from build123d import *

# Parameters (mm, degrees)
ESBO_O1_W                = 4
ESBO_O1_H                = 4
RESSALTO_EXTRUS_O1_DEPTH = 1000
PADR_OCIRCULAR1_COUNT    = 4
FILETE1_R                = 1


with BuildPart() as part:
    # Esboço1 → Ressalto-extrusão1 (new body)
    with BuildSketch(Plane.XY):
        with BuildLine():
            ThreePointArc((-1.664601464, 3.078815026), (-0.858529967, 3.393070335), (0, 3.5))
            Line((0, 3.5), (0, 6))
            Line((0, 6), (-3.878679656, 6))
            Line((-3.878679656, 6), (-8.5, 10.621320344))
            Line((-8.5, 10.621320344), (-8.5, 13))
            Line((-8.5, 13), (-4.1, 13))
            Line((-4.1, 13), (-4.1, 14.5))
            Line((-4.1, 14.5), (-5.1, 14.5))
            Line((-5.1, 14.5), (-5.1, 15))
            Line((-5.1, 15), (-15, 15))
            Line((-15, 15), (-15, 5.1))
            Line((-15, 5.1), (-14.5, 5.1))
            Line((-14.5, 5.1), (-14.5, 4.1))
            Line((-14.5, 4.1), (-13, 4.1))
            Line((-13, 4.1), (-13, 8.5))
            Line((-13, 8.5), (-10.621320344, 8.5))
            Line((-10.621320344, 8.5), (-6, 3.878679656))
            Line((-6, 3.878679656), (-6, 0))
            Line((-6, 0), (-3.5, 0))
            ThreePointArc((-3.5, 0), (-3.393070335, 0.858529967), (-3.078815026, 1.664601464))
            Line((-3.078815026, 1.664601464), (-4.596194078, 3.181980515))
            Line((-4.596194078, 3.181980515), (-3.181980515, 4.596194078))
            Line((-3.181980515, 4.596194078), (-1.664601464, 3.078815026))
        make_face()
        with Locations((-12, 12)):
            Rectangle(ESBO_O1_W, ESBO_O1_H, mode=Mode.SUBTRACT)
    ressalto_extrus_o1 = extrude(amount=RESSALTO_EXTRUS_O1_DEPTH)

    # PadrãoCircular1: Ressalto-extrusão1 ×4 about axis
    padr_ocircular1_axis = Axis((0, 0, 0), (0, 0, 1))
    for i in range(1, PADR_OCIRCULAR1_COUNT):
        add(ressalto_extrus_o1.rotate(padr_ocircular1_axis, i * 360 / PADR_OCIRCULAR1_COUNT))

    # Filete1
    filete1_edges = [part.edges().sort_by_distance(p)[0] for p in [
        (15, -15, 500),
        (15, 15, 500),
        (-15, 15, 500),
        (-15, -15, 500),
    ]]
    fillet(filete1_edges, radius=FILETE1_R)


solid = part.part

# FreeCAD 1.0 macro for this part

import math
import FreeCAD as App
import Part
import Sketcher
from FreeCAD import Vector
Q = App.Units.Quantity


def edges_at(feature, points):
    """Names of the edges that pass closest to the given points."""
    edges = feature.Shape.Edges
    near = lambda p: min(range(len(edges)), key=lambda i: edges[i].distToShape(Part.Vertex(*p))[0])
    return sorted({f"Edge{near(p) + 1}" for p in points})


def add_polygon(sketch, points):
    """Adds a closed chain of lines whose ends are joined by coincident constraints."""
    first, n = sketch.GeometryCount, len(points)
    for a, b in zip(points, points[1:] + points[:1]):
        sketch.addGeometry(Part.LineSegment(App.Vector(*a, 0), App.Vector(*b, 0)), False)
    for i in range(n):
        sketch.addConstraint(Sketcher.Constraint("Coincident", first + i, 2, first + (i + 1) % n, 1))

doc = App.newDocument("Part")
body = doc.addObject("PartDesign::Body", "Body")

# Sketch on XY plane
sketch1 = body.newObject("Sketcher::SketchObject", "Sketch")
sketch1.AttachmentSupport = (doc.getObject("XY_Plane"), [""])
sketch1.MapMode = "FlatFace"
sketch1.addGeometry(Part.ArcOfCircle(Part.Circle(Vector(0, 0, 0), Vector(0, 0, 1), 3.5), math.radians(90), math.radians(118)), False)  # 0
sketch1.addGeometry(Part.LineSegment(Vector(0, 3.5, 0), Vector(0, 6, 0)), False)  # 1
sketch1.addGeometry(Part.LineSegment(Vector(0, 6, 0), Vector(-3.9, 6, 0)), False)  # 2
sketch1.addGeometry(Part.LineSegment(Vector(-3.9, 6, 0), Vector(-8.5, 10.6, 0)), False)  # 3
sketch1.addGeometry(Part.LineSegment(Vector(-8.5, 10.6, 0), Vector(-8.5, 13, 0)), False)  # 4
sketch1.addGeometry(Part.LineSegment(Vector(-8.5, 13, 0), Vector(-4.1, 13, 0)), False)  # 5
sketch1.addGeometry(Part.LineSegment(Vector(-4.1, 13, 0), Vector(-4.1, 14.5, 0)), False)  # 6
sketch1.addGeometry(Part.LineSegment(Vector(-4.1, 14.5, 0), Vector(-5.1, 14.5, 0)), False)  # 7
sketch1.addGeometry(Part.LineSegment(Vector(-5.1, 14.5, 0), Vector(-5.1, 15, 0)), False)  # 8
sketch1.addGeometry(Part.LineSegment(Vector(-5.1, 15, 0), Vector(-15, 15, 0)), False)  # 9
sketch1.addGeometry(Part.LineSegment(Vector(-15, 15, 0), Vector(-15, 5.1, 0)), False)  # 10
sketch1.addGeometry(Part.LineSegment(Vector(-15, 5.1, 0), Vector(-14.5, 5.1, 0)), False)  # 11
sketch1.addGeometry(Part.LineSegment(Vector(-14.5, 5.1, 0), Vector(-14.5, 4.1, 0)), False)  # 12
sketch1.addGeometry(Part.LineSegment(Vector(-14.5, 4.1, 0), Vector(-13, 4.1, 0)), False)  # 13
sketch1.addGeometry(Part.LineSegment(Vector(-13, 4.1, 0), Vector(-13, 8.5, 0)), False)  # 14
sketch1.addGeometry(Part.LineSegment(Vector(-13, 8.5, 0), Vector(-10.6, 8.5, 0)), False)  # 15
sketch1.addGeometry(Part.LineSegment(Vector(-10.6, 8.5, 0), Vector(-6, 3.9, 0)), False)  # 16
sketch1.addGeometry(Part.LineSegment(Vector(-6, 3.9, 0), Vector(-6, 0, 0)), False)  # 17
sketch1.addGeometry(Part.LineSegment(Vector(-6, 0, 0), Vector(-3.5, 0, 0)), False)  # 18
sketch1.addGeometry(Part.ArcOfCircle(Part.Circle(Vector(0, 0, 0), Vector(0, 0, 1), 3.5), math.radians(152), math.radians(180)), False)  # 19
sketch1.addGeometry(Part.LineSegment(Vector(-3.1, 1.7, 0), Vector(-4.6, 3.2, 0)), False)  # 20
sketch1.addGeometry(Part.LineSegment(Vector(-4.6, 3.2, 0), Vector(-3.2, 4.6, 0)), False)  # 21
sketch1.addGeometry(Part.LineSegment(Vector(-3.2, 4.6, 0), Vector(-1.7, 3.1, 0)), False)  # 22
add_polygon(sketch1, [(-10, 10), (-14, 10), (-14, 14), (-10, 14)])  # lines 23-26
sketch1.addConstraint([
    Sketcher.Constraint("Coincident", 0, 1, 1, 1),
    Sketcher.Constraint("Coincident", 1, 2, 2, 1),
    Sketcher.Constraint("Coincident", 2, 2, 3, 1),
    Sketcher.Constraint("Coincident", 3, 2, 4, 1),
    Sketcher.Constraint("Coincident", 4, 2, 5, 1),
    Sketcher.Constraint("Coincident", 5, 2, 6, 1),
    Sketcher.Constraint("Coincident", 6, 2, 7, 1),
    Sketcher.Constraint("Coincident", 7, 2, 8, 1),
    Sketcher.Constraint("Coincident", 8, 2, 9, 1),
    Sketcher.Constraint("Coincident", 9, 2, 10, 1),
    Sketcher.Constraint("Coincident", 10, 2, 11, 1),
    Sketcher.Constraint("Coincident", 11, 2, 12, 1),
    Sketcher.Constraint("Coincident", 12, 2, 13, 1),
    Sketcher.Constraint("Coincident", 13, 2, 14, 1),
    Sketcher.Constraint("Coincident", 14, 2, 15, 1),
    Sketcher.Constraint("Coincident", 15, 2, 16, 1),
    Sketcher.Constraint("Coincident", 16, 2, 17, 1),
    Sketcher.Constraint("Coincident", 17, 2, 18, 1),
    Sketcher.Constraint("Coincident", 18, 2, 19, 2),
    Sketcher.Constraint("Coincident", 19, 1, 20, 1),
    Sketcher.Constraint("Coincident", 20, 2, 21, 1),
    Sketcher.Constraint("Coincident", 21, 2, 22, 1),
    Sketcher.Constraint("Coincident", 22, 2, 0, 2),
    Sketcher.Constraint("Vertical", 1),
    Sketcher.Constraint("Horizontal", 2),
    Sketcher.Constraint("Vertical", 4),
    Sketcher.Constraint("Horizontal", 5),
    Sketcher.Constraint("Vertical", 6),
    Sketcher.Constraint("Horizontal", 7),
    Sketcher.Constraint("Vertical", 8),
    Sketcher.Constraint("Horizontal", 9),
    Sketcher.Constraint("Vertical", 10),
    Sketcher.Constraint("Horizontal", 11),
    Sketcher.Constraint("Vertical", 12),
    Sketcher.Constraint("Horizontal", 13),
    Sketcher.Constraint("Vertical", 14),
    Sketcher.Constraint("Horizontal", 15),
    Sketcher.Constraint("Vertical", 17),
    Sketcher.Constraint("Horizontal", 18),
    Sketcher.Constraint("Horizontal", 23),
    Sketcher.Constraint("Vertical", 24),
    Sketcher.Constraint("Horizontal", 25),
    Sketcher.Constraint("Vertical", 26),
    Sketcher.Constraint("Coincident", 0, 3, -1, 1),
    Sketcher.Constraint("Coincident", 19, 3, -1, 1),
    Sketcher.Constraint("Equal", 0, 19),
    Sketcher.Constraint("PointOnObject", 0, 1, -2),
    Sketcher.Constraint("PointOnObject", 17, 2, -1),
    Sketcher.Constraint("Parallel", 3, 16),
    Sketcher.Constraint("Parallel", 16, 20),
    Sketcher.Constraint("Perpendicular", 20, 21),
    Sketcher.Constraint("Perpendicular", 21, 22),
    Sketcher.Constraint("Equal", 18, 1),
    Sketcher.Constraint("Equal", 15, 4),
    Sketcher.Constraint("Equal", 13, 6),
    Sketcher.Constraint("Equal", 11, 8),
    Sketcher.Constraint("Equal", 9, 10),
    Sketcher.Constraint("Equal", 7, 12),
    Sketcher.Constraint("Equal", 5, 14),
    Sketcher.Constraint("Equal", 2, 17),
    Sketcher.Constraint("Equal", 25, 24),
    Sketcher.Constraint("Equal", 20, 22),
    Sketcher.Constraint("Radius", 0, 3.5),
    Sketcher.Constraint("DistanceX", 7, 2, 7, 1, 1.0),
    Sketcher.Constraint("DistanceX", 23, 2, 23, 1, 4.0),
    Sketcher.Constraint("Angle", 3, Q("135 deg")),
    Sketcher.Constraint("Distance", 21, 2.0),
    Sketcher.Constraint("DistanceX", 5, 1, 5, 2, 4.4),
    Sketcher.Constraint("DistanceX", 9, 2, 9, 1, 9.9),
    Sketcher.Constraint("DistanceX", 11, 1, 11, 2, 0.5),
    Sketcher.Constraint("DistanceX", 13, 1, 13, 2, 1.5),
    Sketcher.Constraint("DistanceX", 18, 1, 18, 2, 2.5),
    Sketcher.Constraint("DistanceY", -1, 1, 4, 2, 13.0),
    Sketcher.Constraint("DistanceX", 23, 2, -1, 1, 14.0),
    Sketcher.Constraint("DistanceY", -1, 1, 23, 2, 10.0),
    Sketcher.Constraint("Distance", 20, 2.145898),
    Sketcher.Constraint("DistanceX", 2, 2, 2, 1, 3.87868),
])
pad1 = body.newObject("PartDesign::Pad", "Pad")
pad1.Profile = sketch1
pad1.Length = 1000
doc.recompute()

polarpattern = body.newObject("PartDesign::PolarPattern", "PolarPattern")
polarpattern.Originals = [pad1]
polarpattern.Axis = (doc.getObject("Z_Axis"), [""])
polarpattern.Angle = 360
polarpattern.Occurrences = 4
body.Tip = polarpattern
doc.recompute()

fillet = body.newObject("PartDesign::Fillet", "Fillet")
fillet.Base = (polarpattern, edges_at(polarpattern, [
    (15, -15, 500),
    (15, 15, 500),
    (-15, 15, 500),
    (-15, -15, 500),
]))
fillet.Radius = 1

doc.recompute()
